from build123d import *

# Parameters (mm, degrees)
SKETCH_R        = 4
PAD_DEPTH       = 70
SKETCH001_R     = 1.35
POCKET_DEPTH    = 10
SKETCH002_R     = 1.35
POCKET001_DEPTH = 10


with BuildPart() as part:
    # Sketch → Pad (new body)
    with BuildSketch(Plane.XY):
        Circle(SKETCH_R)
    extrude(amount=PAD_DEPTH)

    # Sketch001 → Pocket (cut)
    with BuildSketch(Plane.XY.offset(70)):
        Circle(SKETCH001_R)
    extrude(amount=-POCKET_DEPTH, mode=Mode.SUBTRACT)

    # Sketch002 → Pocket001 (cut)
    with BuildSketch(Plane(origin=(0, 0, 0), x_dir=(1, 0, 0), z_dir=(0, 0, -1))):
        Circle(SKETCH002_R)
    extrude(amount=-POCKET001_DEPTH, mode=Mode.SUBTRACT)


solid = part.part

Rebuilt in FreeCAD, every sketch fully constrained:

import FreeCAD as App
import Part
import Sketcher

V = App.Vector

doc = App.newDocument("Part")
body = doc.addObject("PartDesign::Body", "Body")

# Sketch on XY plane
sketch1 = doc.addObject("Sketcher::SketchObject", "Sketch")
body.addObject(sketch1)
sketch1.AttachmentSupport = (doc.XY_Plane, [""])
sketch1.MapMode = "FlatFace"
sketch1.addGeometry(Part.Circle(V(0, 0, 0), V(0, 0, 1), 4), False)
sketch1.addConstraint(Sketcher.Constraint("Coincident", 0, 3, -1, 1))
sketch1.addConstraint(Sketcher.Constraint("Diameter", 0, 8.0))
pad1 = doc.addObject("PartDesign::Pad", "Pad")
body.addObject(pad1)
pad1.Profile = sketch1
pad1.Length = 70

# Sketch on XY plane
sketch2 = doc.addObject("Sketcher::SketchObject", "Sketch001")
body.addObject(sketch2)
sketch2.AttachmentSupport = (doc.XY_Plane, [""])
sketch2.MapMode = "FlatFace"
sketch2.AttachmentOffset = App.Placement(V(0, 0, 70), App.Rotation())
sketch2.addGeometry(Part.Circle(V(0, 0, 0), V(0, 0, 1), 1.4), False)
sketch2.addConstraint(Sketcher.Constraint("Coincident", 0, 3, -1, 1))
sketch2.addConstraint(Sketcher.Constraint("Diameter", 0, 2.7))
pocket1 = doc.addObject("PartDesign::Pocket", "Pocket")
body.addObject(pocket1)
pocket1.Profile = sketch2
pocket1.Length = 10

# Sketch on XY plane
sketch3 = doc.addObject("Sketcher::SketchObject", "Sketch002")
body.addObject(sketch3)
sketch3.AttachmentSupport = (doc.XY_Plane, [""])
sketch3.MapMode = "FlatFace"
sketch3.addGeometry(Part.Circle(V(0, 0, 0), V(0, 0, 1), 1.4), False)
sketch3.addConstraint(Sketcher.Constraint("Coincident", 0, 3, -1, 1))
sketch3.addConstraint(Sketcher.Constraint("Diameter", 0, 2.7))
pocket2 = doc.addObject("PartDesign::Pocket", "Pocket001")
body.addObject(pocket2)
pocket2.Profile = sketch3
pocket2.Length = 10
pocket2.Reversed = True

doc.recompute()
